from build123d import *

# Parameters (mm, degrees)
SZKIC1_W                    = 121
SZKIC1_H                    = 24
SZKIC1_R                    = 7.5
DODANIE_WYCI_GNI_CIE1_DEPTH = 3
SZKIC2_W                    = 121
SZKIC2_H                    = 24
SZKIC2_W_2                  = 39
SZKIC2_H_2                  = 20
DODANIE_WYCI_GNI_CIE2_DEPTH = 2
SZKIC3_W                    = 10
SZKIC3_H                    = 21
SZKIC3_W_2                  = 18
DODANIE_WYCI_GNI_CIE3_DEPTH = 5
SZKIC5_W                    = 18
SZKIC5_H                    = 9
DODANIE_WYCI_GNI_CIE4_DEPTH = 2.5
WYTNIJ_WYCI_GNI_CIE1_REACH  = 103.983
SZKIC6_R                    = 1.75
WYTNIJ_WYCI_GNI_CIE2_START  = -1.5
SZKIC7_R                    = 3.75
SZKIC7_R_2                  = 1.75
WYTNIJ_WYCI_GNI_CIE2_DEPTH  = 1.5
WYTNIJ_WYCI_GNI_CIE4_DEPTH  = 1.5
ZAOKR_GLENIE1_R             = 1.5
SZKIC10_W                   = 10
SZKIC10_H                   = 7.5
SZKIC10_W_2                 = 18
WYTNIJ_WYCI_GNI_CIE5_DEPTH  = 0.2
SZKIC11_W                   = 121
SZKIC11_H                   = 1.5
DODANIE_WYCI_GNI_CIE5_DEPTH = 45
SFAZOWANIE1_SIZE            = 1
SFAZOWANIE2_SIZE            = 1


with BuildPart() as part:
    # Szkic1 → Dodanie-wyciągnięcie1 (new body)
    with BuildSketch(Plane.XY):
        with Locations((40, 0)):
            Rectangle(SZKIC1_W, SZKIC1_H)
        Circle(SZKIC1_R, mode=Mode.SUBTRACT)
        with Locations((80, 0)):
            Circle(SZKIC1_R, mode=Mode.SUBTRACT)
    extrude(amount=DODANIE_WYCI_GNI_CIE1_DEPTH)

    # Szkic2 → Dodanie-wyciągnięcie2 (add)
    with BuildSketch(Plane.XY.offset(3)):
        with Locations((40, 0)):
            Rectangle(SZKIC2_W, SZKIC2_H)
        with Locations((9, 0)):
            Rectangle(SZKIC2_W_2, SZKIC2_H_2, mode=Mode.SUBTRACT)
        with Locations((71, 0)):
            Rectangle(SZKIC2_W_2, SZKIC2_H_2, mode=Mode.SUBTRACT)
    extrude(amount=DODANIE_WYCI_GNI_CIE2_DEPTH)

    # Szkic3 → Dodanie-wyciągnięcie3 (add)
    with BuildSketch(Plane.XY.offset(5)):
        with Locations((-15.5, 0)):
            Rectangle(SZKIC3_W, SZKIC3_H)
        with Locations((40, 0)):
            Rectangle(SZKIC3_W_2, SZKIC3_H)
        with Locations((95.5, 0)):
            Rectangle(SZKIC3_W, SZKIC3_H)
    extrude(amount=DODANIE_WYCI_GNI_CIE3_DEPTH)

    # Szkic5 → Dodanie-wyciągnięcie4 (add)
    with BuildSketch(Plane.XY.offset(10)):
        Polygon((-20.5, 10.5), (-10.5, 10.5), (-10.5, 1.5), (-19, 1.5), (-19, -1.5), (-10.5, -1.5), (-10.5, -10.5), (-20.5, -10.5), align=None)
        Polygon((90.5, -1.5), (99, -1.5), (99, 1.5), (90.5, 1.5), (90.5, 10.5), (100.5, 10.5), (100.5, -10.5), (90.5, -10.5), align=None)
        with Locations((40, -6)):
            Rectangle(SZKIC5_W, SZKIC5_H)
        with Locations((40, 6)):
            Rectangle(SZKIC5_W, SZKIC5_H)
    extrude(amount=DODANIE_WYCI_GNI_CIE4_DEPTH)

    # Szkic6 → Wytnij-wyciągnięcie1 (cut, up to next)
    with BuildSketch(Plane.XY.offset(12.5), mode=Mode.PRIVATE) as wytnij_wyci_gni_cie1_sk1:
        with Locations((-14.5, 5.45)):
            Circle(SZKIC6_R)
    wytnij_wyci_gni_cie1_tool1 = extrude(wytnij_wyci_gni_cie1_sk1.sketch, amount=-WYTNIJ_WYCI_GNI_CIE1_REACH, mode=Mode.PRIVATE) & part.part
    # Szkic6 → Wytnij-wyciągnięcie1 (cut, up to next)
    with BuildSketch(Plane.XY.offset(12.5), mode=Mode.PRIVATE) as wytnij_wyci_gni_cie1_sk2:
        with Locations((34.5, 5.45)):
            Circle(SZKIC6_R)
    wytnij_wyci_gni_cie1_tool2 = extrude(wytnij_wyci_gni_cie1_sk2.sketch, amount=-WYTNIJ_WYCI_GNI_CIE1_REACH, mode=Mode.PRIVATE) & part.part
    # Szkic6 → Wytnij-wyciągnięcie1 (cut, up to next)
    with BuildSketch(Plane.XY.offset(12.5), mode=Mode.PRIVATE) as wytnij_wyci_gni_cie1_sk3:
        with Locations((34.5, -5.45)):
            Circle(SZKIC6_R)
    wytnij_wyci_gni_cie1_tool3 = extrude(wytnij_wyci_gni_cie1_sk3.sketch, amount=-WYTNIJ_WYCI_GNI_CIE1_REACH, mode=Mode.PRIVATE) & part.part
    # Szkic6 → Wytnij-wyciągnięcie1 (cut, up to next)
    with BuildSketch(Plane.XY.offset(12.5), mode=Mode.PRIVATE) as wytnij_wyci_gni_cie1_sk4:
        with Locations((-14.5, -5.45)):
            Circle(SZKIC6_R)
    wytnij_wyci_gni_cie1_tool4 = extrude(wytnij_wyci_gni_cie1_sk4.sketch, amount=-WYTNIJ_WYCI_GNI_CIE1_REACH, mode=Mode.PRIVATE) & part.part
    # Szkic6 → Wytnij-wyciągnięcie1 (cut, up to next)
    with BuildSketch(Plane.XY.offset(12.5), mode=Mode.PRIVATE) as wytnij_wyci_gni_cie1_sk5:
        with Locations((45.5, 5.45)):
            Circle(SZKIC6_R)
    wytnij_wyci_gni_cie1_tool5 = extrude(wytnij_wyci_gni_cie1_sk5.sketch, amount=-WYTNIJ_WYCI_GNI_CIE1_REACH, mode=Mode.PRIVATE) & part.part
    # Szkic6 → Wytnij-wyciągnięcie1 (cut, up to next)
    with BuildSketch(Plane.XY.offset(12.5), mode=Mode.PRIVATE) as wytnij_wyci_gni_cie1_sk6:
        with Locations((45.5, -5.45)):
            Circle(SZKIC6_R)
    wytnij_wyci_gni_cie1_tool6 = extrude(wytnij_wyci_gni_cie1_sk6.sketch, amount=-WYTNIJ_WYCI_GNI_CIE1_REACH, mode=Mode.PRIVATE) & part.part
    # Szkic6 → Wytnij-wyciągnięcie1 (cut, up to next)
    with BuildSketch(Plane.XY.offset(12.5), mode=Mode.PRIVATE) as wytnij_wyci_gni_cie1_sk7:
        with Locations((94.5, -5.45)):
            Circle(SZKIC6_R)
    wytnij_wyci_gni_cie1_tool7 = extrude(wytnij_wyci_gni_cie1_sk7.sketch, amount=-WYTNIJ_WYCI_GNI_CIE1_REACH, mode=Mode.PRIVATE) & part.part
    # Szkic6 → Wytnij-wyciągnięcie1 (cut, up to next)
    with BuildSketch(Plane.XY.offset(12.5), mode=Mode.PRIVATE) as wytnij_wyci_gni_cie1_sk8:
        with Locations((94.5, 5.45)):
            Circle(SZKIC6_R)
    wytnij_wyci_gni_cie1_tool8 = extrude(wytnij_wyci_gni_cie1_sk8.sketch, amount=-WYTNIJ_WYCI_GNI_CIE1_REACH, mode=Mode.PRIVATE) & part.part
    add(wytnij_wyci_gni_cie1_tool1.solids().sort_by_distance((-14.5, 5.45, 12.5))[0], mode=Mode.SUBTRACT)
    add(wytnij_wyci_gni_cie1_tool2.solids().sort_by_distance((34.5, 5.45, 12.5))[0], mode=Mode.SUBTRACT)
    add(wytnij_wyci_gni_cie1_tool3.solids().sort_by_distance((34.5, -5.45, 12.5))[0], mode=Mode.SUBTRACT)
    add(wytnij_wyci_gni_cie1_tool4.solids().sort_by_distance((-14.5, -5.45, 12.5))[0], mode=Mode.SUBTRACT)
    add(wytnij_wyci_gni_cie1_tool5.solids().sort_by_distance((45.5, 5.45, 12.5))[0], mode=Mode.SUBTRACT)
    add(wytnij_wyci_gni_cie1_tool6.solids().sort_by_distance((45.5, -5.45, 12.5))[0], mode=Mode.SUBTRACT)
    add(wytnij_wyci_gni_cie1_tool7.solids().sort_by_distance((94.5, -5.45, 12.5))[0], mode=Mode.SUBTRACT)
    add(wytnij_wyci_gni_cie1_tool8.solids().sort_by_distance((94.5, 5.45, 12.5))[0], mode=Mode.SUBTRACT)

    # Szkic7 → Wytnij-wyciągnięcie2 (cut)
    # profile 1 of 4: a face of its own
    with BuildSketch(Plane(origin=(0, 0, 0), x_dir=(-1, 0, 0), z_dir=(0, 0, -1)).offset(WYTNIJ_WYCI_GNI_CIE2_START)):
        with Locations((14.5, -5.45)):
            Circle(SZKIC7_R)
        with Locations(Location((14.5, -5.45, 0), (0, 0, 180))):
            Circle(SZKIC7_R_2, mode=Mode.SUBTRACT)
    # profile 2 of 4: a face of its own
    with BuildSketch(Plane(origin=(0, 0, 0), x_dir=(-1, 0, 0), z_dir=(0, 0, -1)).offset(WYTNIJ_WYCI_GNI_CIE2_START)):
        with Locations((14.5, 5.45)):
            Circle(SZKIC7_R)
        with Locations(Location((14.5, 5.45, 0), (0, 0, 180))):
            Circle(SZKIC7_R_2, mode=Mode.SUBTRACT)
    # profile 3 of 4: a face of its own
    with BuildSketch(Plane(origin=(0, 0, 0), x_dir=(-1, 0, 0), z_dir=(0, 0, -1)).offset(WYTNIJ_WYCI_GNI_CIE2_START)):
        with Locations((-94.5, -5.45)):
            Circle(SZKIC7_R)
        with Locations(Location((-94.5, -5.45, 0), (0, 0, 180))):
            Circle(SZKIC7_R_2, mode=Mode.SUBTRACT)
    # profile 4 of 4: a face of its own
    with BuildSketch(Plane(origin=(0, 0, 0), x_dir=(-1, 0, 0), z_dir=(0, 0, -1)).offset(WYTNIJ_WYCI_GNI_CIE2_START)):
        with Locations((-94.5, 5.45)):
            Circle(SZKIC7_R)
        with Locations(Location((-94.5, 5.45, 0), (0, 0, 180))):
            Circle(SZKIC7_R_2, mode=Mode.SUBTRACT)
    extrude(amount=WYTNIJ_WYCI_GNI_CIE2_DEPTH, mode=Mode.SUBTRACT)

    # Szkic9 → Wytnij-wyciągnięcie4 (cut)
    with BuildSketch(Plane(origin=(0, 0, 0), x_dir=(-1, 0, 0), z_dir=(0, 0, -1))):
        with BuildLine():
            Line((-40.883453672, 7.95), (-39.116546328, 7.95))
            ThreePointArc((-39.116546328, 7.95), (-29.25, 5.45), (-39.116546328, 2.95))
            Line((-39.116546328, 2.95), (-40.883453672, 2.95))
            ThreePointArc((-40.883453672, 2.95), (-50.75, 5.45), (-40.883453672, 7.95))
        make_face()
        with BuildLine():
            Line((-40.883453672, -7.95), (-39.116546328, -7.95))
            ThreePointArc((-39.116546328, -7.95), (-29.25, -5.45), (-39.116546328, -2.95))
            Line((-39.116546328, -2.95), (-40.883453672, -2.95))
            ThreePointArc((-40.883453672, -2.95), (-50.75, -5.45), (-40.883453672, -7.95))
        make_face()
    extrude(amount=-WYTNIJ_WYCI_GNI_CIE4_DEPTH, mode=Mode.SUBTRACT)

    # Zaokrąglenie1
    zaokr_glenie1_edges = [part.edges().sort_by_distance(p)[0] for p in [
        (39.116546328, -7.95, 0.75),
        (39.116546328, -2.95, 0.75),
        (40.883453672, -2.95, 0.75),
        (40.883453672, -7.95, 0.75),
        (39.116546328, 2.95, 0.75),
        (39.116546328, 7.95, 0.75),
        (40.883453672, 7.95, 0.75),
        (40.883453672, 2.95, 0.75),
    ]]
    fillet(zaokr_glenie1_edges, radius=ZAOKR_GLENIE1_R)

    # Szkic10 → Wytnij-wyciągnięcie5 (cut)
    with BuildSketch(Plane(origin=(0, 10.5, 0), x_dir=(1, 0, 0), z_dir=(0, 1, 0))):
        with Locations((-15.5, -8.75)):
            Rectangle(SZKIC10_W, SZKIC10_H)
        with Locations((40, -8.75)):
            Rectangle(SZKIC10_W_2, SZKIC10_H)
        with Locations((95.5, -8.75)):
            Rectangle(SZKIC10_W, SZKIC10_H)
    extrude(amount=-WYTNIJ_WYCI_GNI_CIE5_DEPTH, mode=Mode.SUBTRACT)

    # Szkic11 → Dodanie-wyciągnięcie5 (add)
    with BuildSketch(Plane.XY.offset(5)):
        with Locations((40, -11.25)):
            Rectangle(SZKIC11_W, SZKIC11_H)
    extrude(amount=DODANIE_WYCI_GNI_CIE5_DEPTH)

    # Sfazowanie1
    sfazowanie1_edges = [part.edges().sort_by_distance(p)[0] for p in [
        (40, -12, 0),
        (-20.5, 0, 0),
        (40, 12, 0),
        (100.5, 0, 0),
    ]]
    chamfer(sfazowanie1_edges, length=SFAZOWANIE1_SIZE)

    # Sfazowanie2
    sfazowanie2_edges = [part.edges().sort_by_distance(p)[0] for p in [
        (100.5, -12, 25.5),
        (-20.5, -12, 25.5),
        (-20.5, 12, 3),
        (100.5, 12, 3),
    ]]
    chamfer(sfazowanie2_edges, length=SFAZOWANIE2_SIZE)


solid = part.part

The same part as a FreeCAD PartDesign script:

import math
import FreeCAD as App
import Part
import Sketcher
from FreeCAD import Vector
Q = App.Units.Quantity


def edges_at(feature, points):
    """Names of the edges that pass closest to the given points."""
    edges = feature.Shape.Edges
    near = lambda p: min(range(len(edges)), key=lambda i: edges[i].distToShape(Part.Vertex(*p))[0])
    return sorted({f"Edge{near(p) + 1}" for p in points})


def add_polygon(sketch, points):
    """Adds a closed chain of lines whose ends are joined by coincident constraints."""
    first, n = sketch.GeometryCount, len(points)
    for a, b in zip(points, points[1:] + points[:1]):
        sketch.addGeometry(Part.LineSegment(App.Vector(*a, 0), App.Vector(*b, 0)), False)
    for i in range(n):
        sketch.addConstraint(Sketcher.Constraint("Coincident", first + i, 2, first + (i + 1) % n, 1))

doc = App.newDocument("Part")
body = doc.addObject("PartDesign::Body", "Body")

# Sketch on XY plane
sketch1 = body.newObject("Sketcher::SketchObject", "Sketch")
sketch1.AttachmentSupport = (doc.getObject("XY_Plane"), [""])
sketch1.MapMode = "FlatFace"
add_polygon(sketch1, [(-20, 12), (-20, -12), (100, -12), (100, 12)])  # lines 0-3
sketch1.addGeometry(Part.Circle(Vector(0, 0, 0), Vector(0, 0, 1), 8), False)  # 4
sketch1.addGeometry(Part.Circle(Vector(80, 0, 0), Vector(0, 0, 1), 8), False)  # 5
sketch1.addConstraint([
    Sketcher.Constraint("Vertical", 0),
    Sketcher.Constraint("Horizontal", 1),
    Sketcher.Constraint("Vertical", 2),
    Sketcher.Constraint("Horizontal", 3),
    Sketcher.Constraint("Coincident", 4, 3, -1, 1),
    Sketcher.Constraint("Equal", 4, 5),
    Sketcher.Constraint("PointOnObject", 5, 3, -1),
    Sketcher.Constraint("Diameter", 4, Q("15 mm")),
    Sketcher.Constraint("DistanceX", 1, 1, 1, 2, Q("121 mm")),
    Sketcher.Constraint("DistanceY", 0, 2, 0, 1, Q("24 mm")),
    Sketcher.Constraint("DistanceX", -1, 1, 5, 3, Q("80 mm")),
    Sketcher.Constraint("DistanceY", 0, 2, -1, 1, Q("12 mm")),
    Sketcher.Constraint("DistanceX", 0, 2, -1, 1, Q("20.5 mm")),
])
pad1 = body.newObject("PartDesign::Pad", "Pad")
pad1.Profile = sketch1
pad1.Length = 3

# Sketch on XY plane
sketch2 = body.newObject("Sketcher::SketchObject", "Sketch001")
sketch2.AttachmentSupport = (doc.getObject("XY_Plane"), [""])
sketch2.MapMode = "FlatFace"
sketch2.AttachmentOffset = App.Placement(Vector(0, 0, 3), App.Rotation())
add_polygon(sketch2, [(-20, 12), (-20, -12), (100, -12), (100, 12)])  # lines 0-3
add_polygon(sketch2, [(28, -10), (-10, -10), (-10, 10), (28, 10)])  # lines 4-7
add_polygon(sketch2, [(90, -10), (52, -10), (52, 10), (90, 10)])  # lines 8-11
sketch2.addConstraint([
    Sketcher.Constraint("Vertical", 0),
    Sketcher.Constraint("Horizontal", 1),
    Sketcher.Constraint("Vertical", 2),
    Sketcher.Constraint("Horizontal", 3),
    Sketcher.Constraint("Horizontal", 4),
    Sketcher.Constraint("Vertical", 5),
    Sketcher.Constraint("Horizontal", 6),
    Sketcher.Constraint("Vertical", 7),
    Sketcher.Constraint("Horizontal", 8),
    Sketcher.Constraint("Vertical", 9),
    Sketcher.Constraint("Horizontal", 10),
    Sketcher.Constraint("Vertical", 11),
    Sketcher.Constraint("Horizontal", 7, 2, 8, 2),
    Sketcher.Constraint("Horizontal", 6, 2, 9, 2),
    Sketcher.Constraint("Equal", 6, 8),
    Sketcher.Constraint("DistanceX", 1, 1, 1, 2, Q("121 mm")),
    Sketcher.Constraint("DistanceX", 4, 2, 4, 1, Q("39 mm")),
    Sketcher.Constraint("DistanceY", 0, 2, 0, 1, Q("24 mm")),
    Sketcher.Constraint("DistanceY", 5, 1, 5, 2, Q("20 mm")),
    Sketcher.Constraint("DistanceY", 0, 2, -1, 1, Q("12 mm")),
    Sketcher.Constraint("DistanceY", 4, 2, -1, 1, Q("10 mm")),
    Sketcher.Constraint("DistanceX", 0, 2, 4, 2, Q("10 mm")),
    Sketcher.Constraint("DistanceX", 7, 2, 8, 2, Q("23 mm")),
    Sketcher.Constraint("DistanceX", 0, 2, -1, 1, Q("20.5 mm")),
])
pad2 = body.newObject("PartDesign::Pad", "Pad001")
pad2.Profile = sketch2
pad2.Length = 2

# Sketch on XY plane
sketch3 = body.newObject("Sketcher::SketchObject", "Sketch002")
sketch3.AttachmentSupport = (doc.getObject("XY_Plane"), [""])
sketch3.MapMode = "FlatFace"
sketch3.AttachmentOffset = App.Placement(Vector(0, 0, 5), App.Rotation())
add_polygon(sketch3, [(-20, 10), (-20, -10), (-10, -10), (-10, 10)])  # lines 0-3
add_polygon(sketch3, [(31, 10), (31, -10), (49, -10), (49, 10)])  # lines 4-7
add_polygon(sketch3, [(90, 10), (90, -10), (100, -10), (100, 10)])  # lines 8-11
sketch3.addConstraint([
    Sketcher.Constraint("Vertical", 0),
    Sketcher.Constraint("Horizontal", 1),
    Sketcher.Constraint("Vertical", 2),
    Sketcher.Constraint("Horizontal", 3),
    Sketcher.Constraint("Vertical", 4),
    Sketcher.Constraint("Horizontal", 5),
    Sketcher.Constraint("Vertical", 6),
    Sketcher.Constraint("Horizontal", 7),
    Sketcher.Constraint("Vertical", 8),
    Sketcher.Constraint("Horizontal", 9),
    Sketcher.Constraint("Vertical", 10),
    Sketcher.Constraint("Horizontal", 11),
    Sketcher.Constraint("Horizontal", 1, 2, 4, 2),
    Sketcher.Constraint("Horizontal", 3, 2, 6, 2),
    Sketcher.Constraint("Horizontal", 5, 2, 8, 2),
    Sketcher.Constraint("Horizontal", 7, 2, 10, 2),
    Sketcher.Constraint("Equal", 3, 9),
    Sketcher.Constraint("DistanceX", 1, 1, 1, 2, Q("10 mm")),
    Sketcher.Constraint("DistanceX", 5, 1, 5, 2, Q("18 mm")),
    Sketcher.Constraint("DistanceY", 0, 2, 0, 1, Q("21 mm")),
    Sketcher.Constraint("DistanceX", -1, 1, 4, 2, Q("31 mm")),
    Sketcher.Constraint("DistanceX", 1, 2, 8, 2, Q("101 mm")),
    Sketcher.Constraint("DistanceX", 0, 2, -1, 1, Q("20.5 mm")),
    Sketcher.Constraint("DistanceY", 0, 2, -1, 1, Q("10.5 mm")),
])
pad3 = body.newObject("PartDesign::Pad", "Pad002")
pad3.Profile = sketch3
pad3.Length = 5

# Sketch on XY plane
sketch4 = body.newObject("Sketcher::SketchObject", "Sketch003")
sketch4.AttachmentSupport = (doc.getObject("XY_Plane"), [""])
sketch4.MapMode = "FlatFace"
sketch4.AttachmentOffset = App.Placement(Vector(0, 0, 10), App.Rotation())
add_polygon(sketch4, [(-10.5, 10.5), (-20.5, 10.5), (-20.5, -10.5), (-10.5, -10.5), (-10.5, -1.5), (-19, -1.5), (-19, 1.5), (-10.5, 1.5)])  # lines 0-7
add_polygon(sketch4, [(99, -1.5), (90.5, -1.5), (90.5, -10.5), (100.5, -10.5), (100.5, 10.5), (90.5, 10.5), (90.5, 1.5), (99, 1.5)])  # lines 8-15
add_polygon(sketch4, [(31, -1.5), (31, -10.5), (49, -10.5), (49, -1.5)])  # lines 16-19
add_polygon(sketch4, [(31, 10.5), (31, 1.5), (49, 1.5), (49, 10.5)])  # lines 20-23
sketch4.addConstraint([
    Sketcher.Constraint("Horizontal", 0),
    Sketcher.Constraint("Vertical", 1),
    Sketcher.Constraint("Horizontal", 2),
    Sketcher.Constraint("Vertical", 3),
    Sketcher.Constraint("Horizontal", 4),
    Sketcher.Constraint("Vertical", 5),
    Sketcher.Constraint("Horizontal", 6),
    Sketcher.Constraint("Vertical", 7),
    Sketcher.Constraint("Horizontal", 8),
    Sketcher.Constraint("Vertical", 9),
    Sketcher.Constraint("Horizontal", 10),
    Sketcher.Constraint("Vertical", 11),
    Sketcher.Constraint("Horizontal", 12),
    Sketcher.Constraint("Vertical", 13),
    Sketcher.Constraint("Horizontal", 14),
    Sketcher.Constraint("Vertical", 15),
    Sketcher.Constraint("Vertical", 16),
    Sketcher.Constraint("Horizontal", 17),
    Sketcher.Constraint("Vertical", 18),
    Sketcher.Constraint("Horizontal", 19),
    Sketcher.Constraint("Vertical", 20),
    Sketcher.Constraint("Horizontal", 21),
    Sketcher.Constraint("Vertical", 22),
    Sketcher.Constraint("Horizontal", 23),
    Sketcher.Constraint("Symmetric", 3, 2, 6, 2, -1),
    Sketcher.Constraint("Symmetric", 9, 2, 12, 2, -1),
    Sketcher.Constraint("Symmetric", 19, 2, 20, 2, -1),
    Sketcher.Constraint("Symmetric", 17, 2, 22, 2, -1),
    Sketcher.Constraint("Horizontal", 4, 2, 8, 2),
    Sketcher.Constraint("Horizontal", 2, 2, 9, 2),
    Sketcher.Constraint("Horizontal", 7, 2, 11, 2),
    Sketcher.Constraint("Horizontal", 6, 2, 13, 2),
    Sketcher.Constraint("Horizontal", 10, 2, 16, 2),
    Sketcher.Constraint("Horizontal", 15, 2, 18, 2),
    Sketcher.Constraint("Equal", 6, 8),
    Sketcher.Constraint("Equal", 2, 10),
    Sketcher.Constraint("DistanceX", 0, 2, 0, 1, Q("10 mm")),
    Sketcher.Constraint("DistanceX", 17, 1, 17, 2, Q("18 mm")),
    Sketcher.Constraint("DistanceY", 1, 2, 1, 1, Q("21 mm")),
    Sketcher.Constraint("DistanceY", 3, 1, 3, 2, Q("9 mm")),
    Sketcher.Constraint("DistanceX", 4, 2, 4, 1, Q("8.5 mm")),
    Sketcher.Constraint("DistanceX", 4, 2, -1, 1, Q("19 mm")),
    Sketcher.Constraint("DistanceX", -1, 1, 14, 2, Q("99 mm")),
    Sketcher.Constraint("DistanceX", -1, 1, 16, 2, Q("31 mm")),
])
pad4 = body.newObject("PartDesign::Pad", "Pad003")
pad4.Profile = sketch4
pad4.Length = 2.5

# Sketch on XY plane
sketch5 = body.newObject("Sketcher::SketchObject", "Sketch004")
sketch5.AttachmentSupport = (doc.getObject("XY_Plane"), [""])
sketch5.MapMode = "FlatFace"
sketch5.AttachmentOffset = App.Placement(Vector(0, 0, 12.5), App.Rotation())
sketch5.addGeometry(Part.Circle(Vector(-14.5, 5.5, 0), Vector(0, 0, 1), 1.8), False)
sketch5.addConstraint([
    Sketcher.Constraint("Diameter", 0, Q("3.5 mm")),
    Sketcher.Constraint("DistanceX", 0, 3, -1, 1, Q("14.5 mm")),
    Sketcher.Constraint("DistanceY", -1, 1, 0, 3, Q("5.45 mm")),
])
pocket1 = body.newObject("PartDesign::Pocket", "Pocket")
pocket1.Profile = sketch5
pocket1.Type = "UpToFirst"

# Sketch on XY plane
sketch6 = body.newObject("Sketcher::SketchObject", "Sketch005")
sketch6.AttachmentSupport = (doc.getObject("XY_Plane"), [""])
sketch6.MapMode = "FlatFace"
sketch6.AttachmentOffset = App.Placement(Vector(0, 0, 12.5), App.Rotation())
sketch6.addGeometry(Part.Circle(Vector(34.5, 5.5, 0), Vector(0, 0, 1), 1.8), False)
sketch6.addConstraint([
    Sketcher.Constraint("Diameter", 0, Q("3.5 mm")),
    Sketcher.Constraint("DistanceX", -1, 1, 0, 3, Q("34.5 mm")),
    Sketcher.Constraint("DistanceY", -1, 1, 0, 3, Q("5.45 mm")),
])
pocket2 = body.newObject("PartDesign::Pocket", "Pocket001")
pocket2.Profile = sketch6
pocket2.Type = "UpToFirst"

# Sketch on XY plane
sketch7 = body.newObject("Sketcher::SketchObject", "Sketch006")
sketch7.AttachmentSupport = (doc.getObject("XY_Plane"), [""])
sketch7.MapMode = "FlatFace"
sketch7.AttachmentOffset = App.Placement(Vector(0, 0, 12.5), App.Rotation())
sketch7.addGeometry(Part.Circle(Vector(34.5, -5.5, 0), Vector(0, 0, 1), 1.8), False)
sketch7.addConstraint([
    Sketcher.Constraint("Diameter", 0, Q("3.5 mm")),
    Sketcher.Constraint("DistanceX", -1, 1, 0, 3, Q("34.5 mm")),
    Sketcher.Constraint("DistanceY", 0, 3, -1, 1, Q("5.45 mm")),
])
pocket3 = body.newObject("PartDesign::Pocket", "Pocket002")
pocket3.Profile = sketch7
pocket3.Type = "UpToFirst"

# Sketch on XY plane
sketch8 = body.newObject("Sketcher::SketchObject", "Sketch007")
sketch8.AttachmentSupport = (doc.getObject("XY_Plane"), [""])
sketch8.MapMode = "FlatFace"
sketch8.AttachmentOffset = App.Placement(Vector(0, 0, 12.5), App.Rotation())
sketch8.addGeometry(Part.Circle(Vector(-14.5, -5.5, 0), Vector(0, 0, 1), 1.8), False)
sketch8.addConstraint([
    Sketcher.Constraint("Diameter", 0, Q("3.5 mm")),
    Sketcher.Constraint("DistanceX", 0, 3, -1, 1, Q("14.5 mm")),
    Sketcher.Constraint("DistanceY", 0, 3, -1, 1, Q("5.45 mm")),
])
pocket4 = body.newObject("PartDesign::Pocket", "Pocket003")
pocket4.Profile = sketch8
pocket4.Type = "UpToFirst"

# Sketch on XY plane
sketch9 = body.newObject("Sketcher::SketchObject", "Sketch008")
sketch9.AttachmentSupport = (doc.getObject("XY_Plane"), [""])
sketch9.MapMode = "FlatFace"
sketch9.AttachmentOffset = App.Placement(Vector(0, 0, 12.5), App.Rotation())
sketch9.addGeometry(Part.Circle(Vector(45.5, 5.5, 0), Vector(0, 0, 1), 1.8), False)
sketch9.addConstraint([
    Sketcher.Constraint("Diameter", 0, Q("3.5 mm")),
    Sketcher.Constraint("DistanceX", -1, 1, 0, 3, Q("45.5 mm")),
    Sketcher.Constraint("DistanceY", -1, 1, 0, 3, Q("5.45 mm")),
])
pocket5 = body.newObject("PartDesign::Pocket", "Pocket004")
pocket5.Profile = sketch9
pocket5.Type = "UpToFirst"

# Sketch on XY plane
sketch10 = body.newObject("Sketcher::SketchObject", "Sketch009")
sketch10.AttachmentSupport = (doc.getObject("XY_Plane"), [""])
sketch10.MapMode = "FlatFace"
sketch10.AttachmentOffset = App.Placement(Vector(0, 0, 12.5), App.Rotation())
sketch10.addGeometry(Part.Circle(Vector(45.5, -5.5, 0), Vector(0, 0, 1), 1.8), False)
sketch10.addConstraint([
    Sketcher.Constraint("Diameter", 0, Q("3.5 mm")),
    Sketcher.Constraint("DistanceX", -1, 1, 0, 3, Q("45.5 mm")),
    Sketcher.Constraint("DistanceY", 0, 3, -1, 1, Q("5.45 mm")),
])
pocket6 = body.newObject("PartDesign::Pocket", "Pocket005")
pocket6.Profile = sketch10
pocket6.Type = "UpToFirst"

# Sketch on XY plane
sketch11 = body.newObject("Sketcher::SketchObject", "Sketch010")
sketch11.AttachmentSupport = (doc.getObject("XY_Plane"), [""])
sketch11.MapMode = "FlatFace"
sketch11.AttachmentOffset = App.Placement(Vector(0, 0, 12.5), App.Rotation())
sketch11.addGeometry(Part.Circle(Vector(94.5, -5.5, 0), Vector(0, 0, 1), 1.8), False)
sketch11.addConstraint([
    Sketcher.Constraint("Diameter", 0, Q("3.5 mm")),
    Sketcher.Constraint("DistanceX", -1, 1, 0, 3, Q("94.5 mm")),
    Sketcher.Constraint("DistanceY", 0, 3, -1, 1, Q("5.45 mm")),
])
pocket7 = body.newObject("PartDesign::Pocket", "Pocket006")
pocket7.Profile = sketch11
pocket7.Type = "UpToFirst"

# Sketch on XY plane
sketch12 = body.newObject("Sketcher::SketchObject", "Sketch011")
sketch12.AttachmentSupport = (doc.getObject("XY_Plane"), [""])
sketch12.MapMode = "FlatFace"
sketch12.AttachmentOffset = App.Placement(Vector(0, 0, 12.5), App.Rotation())
sketch12.addGeometry(Part.Circle(Vector(94.5, 5.5, 0), Vector(0, 0, 1), 1.8), False)
sketch12.addConstraint([
    Sketcher.Constraint("Diameter", 0, Q("3.5 mm")),
    Sketcher.Constraint("DistanceX", -1, 1, 0, 3, Q("94.5 mm")),
    Sketcher.Constraint("DistanceY", -1, 1, 0, 3, Q("5.45 mm")),
])
pocket8 = body.newObject("PartDesign::Pocket", "Pocket007")
pocket8.Profile = sketch12
pocket8.Type = "UpToFirst"

# Sketch on XY plane
sketch13 = body.newObject("Sketcher::SketchObject", "Sketch012")
sketch13.AttachmentSupport = (doc.getObject("XY_Plane"), [""])
sketch13.MapMode = "FlatFace"
sketch13.AttachmentOffset = App.Placement(Vector(0, 0, 1.5), App.Rotation())
sketch13.addGeometry([
    Part.Circle(Vector(-14.5, -5.5, 0), Vector(0, 0, 1), 3.8),  # 0
    Part.Circle(Vector(-14.5, -5.5, 0), Vector(0, 0, 1), 1.8),  # 1
    Part.Circle(Vector(-14.5, 5.5, 0), Vector(0, 0, 1), 3.8),  # 2
    Part.Circle(Vector(-14.5, 5.5, 0), Vector(0, 0, 1), 1.8),  # 3
    Part.Circle(Vector(94.5, -5.5, 0), Vector(0, 0, 1), 3.8),  # 4
    Part.Circle(Vector(94.5, -5.5, 0), Vector(0, 0, 1), 1.8),  # 5
    Part.Circle(Vector(94.5, 5.5, 0), Vector(0, 0, 1), 3.8),  # 6
    Part.Circle(Vector(94.5, 5.5, 0), Vector(0, 0, 1), 1.8),  # 7
], False)
sketch13.addConstraint([
    Sketcher.Constraint("Coincident", 1, 3, 0, 3),
    Sketcher.Constraint("Coincident", 3, 3, 2, 3),
    Sketcher.Constraint("Coincident", 5, 3, 4, 3),
    Sketcher.Constraint("Coincident", 7, 3, 6, 3),
    Sketcher.Constraint("Equal", 0, 2),
    Sketcher.Constraint("Equal", 1, 3),
    Sketcher.Constraint("Equal", 2, 4),
    Sketcher.Constraint("Equal", 3, 5),
    Sketcher.Constraint("Equal", 4, 6),
    Sketcher.Constraint("Equal", 5, 7),
    Sketcher.Constraint("Symmetric", 0, 3, 2, 3, -1),
    Sketcher.Constraint("Symmetric", 4, 3, 6, 3, -1),
    Sketcher.Constraint("Horizontal", 1, 3, 4, 3),
    Sketcher.Constraint("Diameter", 0, Q("7.5 mm")),
    Sketcher.Constraint("Diameter", 1, Q("3.5 mm")),
    Sketcher.Constraint("DistanceX", 0, 3, 4, 3, Q("109 mm")),
    Sketcher.Constraint("DistanceX", 0, 3, -1, 1, Q("14.5 mm")),
    Sketcher.Constraint("DistanceY", 0, 3, 2, 3, Q("10.9 mm")),
])
pocket9 = body.newObject("PartDesign::Pocket", "Pocket008")
pocket9.Profile = sketch13
pocket9.Length = 1.5

# Sketch on XY plane
sketch14 = body.newObject("Sketcher::SketchObject", "Sketch013")
sketch14.AttachmentSupport = (doc.getObject("XY_Plane"), [""])
sketch14.MapMode = "FlatFace"
sketch14.addGeometry([
    Part.LineSegment(Vector(39.1, 8, 0), Vector(40.9, 8, 0)),  # 0
    Part.ArcOfCircle(Part.Circle(Vector(45.5, 5.5, 0), Vector(0, 0, 1), 5.2), math.radians(-152), math.radians(152)),  # 1
    Part.LineSegment(Vector(40.9, 3, 0), Vector(39.1, 3, 0)),  # 2
    Part.ArcOfCircle(Part.Circle(Vector(34.5, 5.5, 0), Vector(0, 0, 1), 5.2), math.radians(28), math.radians(332)),  # 3
    Part.LineSegment(Vector(40.9, -8, 0), Vector(39.1, -8, 0)),  # 4
    Part.ArcOfCircle(Part.Circle(Vector(34.5, -5.5, 0), Vector(0, 0, 1), 5.2), math.radians(28), math.radians(332)),  # 5
    Part.LineSegment(Vector(39.1, -3, 0), Vector(40.9, -3, 0)),  # 6
    Part.ArcOfCircle(Part.Circle(Vector(45.5, -5.5, 0), Vector(0, 0, 1), 5.2), math.radians(-152), math.radians(152)),  # 7
], False)
sketch14.addConstraint([
    Sketcher.Constraint("Coincident", 0, 2, 1, 2),
    Sketcher.Constraint("Coincident", 1, 1, 2, 1),
    Sketcher.Constraint("Coincident", 2, 2, 3, 2),
    Sketcher.Constraint("Coincident", 3, 1, 0, 1),
    Sketcher.Constraint("Coincident", 4, 2, 5, 2),
    Sketcher.Constraint("Coincident", 5, 1, 6, 1),
    Sketcher.Constraint("Coincident", 6, 2, 7, 2),
    Sketcher.Constraint("Coincident", 7, 1, 4, 1),
    Sketcher.Constraint("Horizontal", 0),
    Sketcher.Constraint("Horizontal", 2),
    Sketcher.Constraint("Horizontal", 4),
    Sketcher.Constraint("Horizontal", 6),
    Sketcher.Constraint("Equal", 1, 3),
    Sketcher.Constraint("Equal", 3, 5),
    Sketcher.Constraint("Equal", 5, 7),
    Sketcher.Constraint("Symmetric", 3, 3, 5, 3, -1),
    Sketcher.Constraint("Symmetric", 1, 3, 7, 3, -1),
    Sketcher.Constraint("Horizontal", 1, 3, 3, 3),
    Sketcher.Constraint("Vertical", 0, 2, 1, 1),
    Sketcher.Constraint("Vertical", 3, 1, 4, 2),
    Sketcher.Constraint("Vertical", 4, 2, 5, 1),
    Sketcher.Constraint("Radius", 1, Q("5.25 mm")),
    Sketcher.Constraint("DistanceX", 3, 3, 1, 3, Q("11 mm")),
    Sketcher.Constraint("DistanceY", 1, 1, 0, 2, Q("5 mm")),
    Sketcher.Constraint("DistanceX", -1, 1, 1, 3, Q("45.5 mm")),
    Sketcher.Constraint("DistanceY", 5, 3, 3, 3, Q("10.9 mm")),
])
pocket10 = body.newObject("PartDesign::Pocket", "Pocket009")
pocket10.Profile = sketch14
pocket10.Length = 1.5
pocket10.Reversed = True
doc.recompute()

fillet = body.newObject("PartDesign::Fillet", "Fillet")
fillet.Base = (pocket10, edges_at(pocket10, [
    (39.117, -7.95, 0.75),
    (39.117, -2.95, 0.75),
    (40.883, -2.95, 0.75),
    (40.883, -7.95, 0.75),
    (39.117, 2.95, 0.75),
    (39.117, 7.95, 0.75),
    (40.883, 7.95, 0.75),
    (40.883, 2.95, 0.75),
]))
fillet.Radius = 1.5

# Sketch on XZ plane
sketch15 = body.newObject("Sketcher::SketchObject", "Sketch014")
sketch15.AttachmentSupport = (doc.getObject("XZ_Plane"), [""])
sketch15.MapMode = "FlatFace"
sketch15.AttachmentOffset = App.Placement(Vector(0, 0, -10.5), App.Rotation())
add_polygon(sketch15, [(-20, 5), (-20, 12), (-10, 12), (-10, 5)])  # lines 0-3
add_polygon(sketch15, [(31, 5), (31, 12), (49, 12), (49, 5)])  # lines 4-7
add_polygon(sketch15, [(90, 5), (90, 12), (100, 12), (100, 5)])  # lines 8-11
sketch15.addConstraint([
    Sketcher.Constraint("Vertical", 0),
    Sketcher.Constraint("Horizontal", 1),
    Sketcher.Constraint("Vertical", 2),
    Sketcher.Constraint("Horizontal", 3),
    Sketcher.Constraint("Vertical", 4),
    Sketcher.Constraint("Horizontal", 5),
    Sketcher.Constraint("Vertical", 6),
    Sketcher.Constraint("Horizontal", 7),
    Sketcher.Constraint("Vertical", 8),
    Sketcher.Constraint("Horizontal", 9),
    Sketcher.Constraint("Vertical", 10),
    Sketcher.Constraint("Horizontal", 11),
    Sketcher.Constraint("Horizontal", 1, 2, 4, 2),
    Sketcher.Constraint("Horizontal", 3, 2, 6, 2),
    Sketcher.Constraint("Horizontal", 5, 2, 8, 2),
    Sketcher.Constraint("Horizontal", 7, 2, 10, 2),
    Sketcher.Constraint("Equal", 3, 9),
    Sketcher.Constraint("DistanceX", 1, 1, 1, 2, Q("10 mm")),
    Sketcher.Constraint("DistanceX", 5, 1, 5, 2, Q("18 mm")),
    Sketcher.Constraint("DistanceY", 0, 1, 0, 2, Q("7.5 mm")),
    Sketcher.Constraint("DistanceY", -1, 1, 2, 2, Q("5 mm")),
    Sketcher.Constraint("DistanceX", -1, 1, 4, 2, Q("31 mm")),
    Sketcher.Constraint("DistanceX", 1, 2, 8, 2, Q("101 mm")),
    Sketcher.Constraint("DistanceX", 0, 2, -1, 1, Q("20.5 mm")),
])
pocket11 = body.newObject("PartDesign::Pocket", "Pocket010")
pocket11.Profile = sketch15
pocket11.Length = 0.2
pocket11.Reversed = True

# Sketch on XY plane
sketch16 = body.newObject("Sketcher::SketchObject", "Sketch015")
sketch16.AttachmentSupport = (doc.getObject("XY_Plane"), [""])
sketch16.MapMode = "FlatFace"
sketch16.AttachmentOffset = App.Placement(Vector(0, 0, 5), App.Rotation())
add_polygon(sketch16, [(-20.5, -10.5), (-20.5, -12), (100.5, -12), (100.5, -10.5)])  # lines 0-3
sketch16.addConstraint([
    Sketcher.Constraint("Vertical", 0),
    Sketcher.Constraint("Horizontal", 1),
    Sketcher.Constraint("Vertical", 2),
    Sketcher.Constraint("Horizontal", 3),
    Sketcher.Constraint("DistanceX", 1, 1, 1, 2, Q("121 mm")),
    Sketcher.Constraint("DistanceY", 0, 2, 0, 1, Q("1.5 mm")),
    Sketcher.Constraint("DistanceY", 0, 2, -1, 1, Q("12 mm")),
    Sketcher.Constraint("DistanceX", 0, 2, -1, 1, Q("20.5 mm")),
])
pad5 = body.newObject("PartDesign::Pad", "Pad004")
pad5.Profile = sketch16
pad5.Length = 45
doc.recompute()

chamfer = body.newObject("PartDesign::Chamfer", "Chamfer")
chamfer.Base = (pad5, edges_at(pad5, [
    (40, -12, 0),
    (-20.5, 0, 0),
    (40, 12, 0),
    (100.5, 0, 0),
]))
chamfer.Size = 1
doc.recompute()

chamfer2 = body.newObject("PartDesign::Chamfer", "Chamfer001")
chamfer2.Base = (chamfer, edges_at(chamfer, [
    (100.5, -12, 25.5),
    (-20.5, -12, 25.5),
    (-20.5, 12, 3),
    (100.5, 12, 3),
]))
chamfer2.Size = 1

doc.recompute()
